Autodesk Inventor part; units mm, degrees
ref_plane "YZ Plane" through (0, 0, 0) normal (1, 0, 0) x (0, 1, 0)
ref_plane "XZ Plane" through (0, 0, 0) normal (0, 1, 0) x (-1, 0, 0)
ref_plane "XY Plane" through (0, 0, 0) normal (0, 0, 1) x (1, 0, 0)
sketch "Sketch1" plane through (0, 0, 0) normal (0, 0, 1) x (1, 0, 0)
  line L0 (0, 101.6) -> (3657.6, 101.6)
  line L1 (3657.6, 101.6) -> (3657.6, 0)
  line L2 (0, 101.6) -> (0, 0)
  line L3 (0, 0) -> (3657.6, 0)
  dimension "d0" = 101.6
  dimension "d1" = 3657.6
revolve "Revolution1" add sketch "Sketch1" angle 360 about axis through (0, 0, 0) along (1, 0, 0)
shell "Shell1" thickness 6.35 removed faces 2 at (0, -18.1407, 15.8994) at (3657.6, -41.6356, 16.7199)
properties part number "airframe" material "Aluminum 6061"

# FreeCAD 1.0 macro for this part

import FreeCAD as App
import Part
import Sketcher
Q = App.Units.Quantity


def faces_at(feature, points):
    """Names of the faces that lie closest to the given points."""
    faces = feature.Shape.Faces
    near = lambda p: min(range(len(faces)), key=lambda i: faces[i].distToShape(Part.Vertex(*p))[0])
    return sorted({f"Face{near(p) + 1}" for p in points})

doc = App.newDocument("Part")
body = doc.addObject("PartDesign::Body", "Body")

sketch1 = body.newObject("Sketcher::SketchObject", "Sketch")
sketch1.AttachmentSupport = (doc.getObject("XY_Plane"), [""])
sketch1.MapMode = "FlatFace"
sketch1.addGeometry([
    Part.LineSegment(App.Vector(3657.6, 101.6, 0), App.Vector(0, 101.6, 0)),
    Part.LineSegment(App.Vector(0, 101.6, 0), App.Vector(0, 0, 0)),
    Part.LineSegment(App.Vector(0, 0, 0), App.Vector(3657.6, 0, 0)),
    Part.LineSegment(App.Vector(3657.6, 0, 0), App.Vector(3657.6, 101.6, 0)),
], False)
sketch1.addConstraint([
    Sketcher.Constraint("Coincident", 0, 2, 1, 1),
    Sketcher.Constraint("Coincident", 1, 2, 2, 1),
    Sketcher.Constraint("Coincident", 2, 2, 3, 1),
    Sketcher.Constraint("Coincident", 3, 2, 0, 1),
    Sketcher.Constraint("Horizontal", 0),
    Sketcher.Constraint("Vertical", 1),
    Sketcher.Constraint("Horizontal", 2),
    Sketcher.Constraint("Vertical", 3),
    Sketcher.Constraint("Coincident", 1, 2, -1, 1),
    Sketcher.Constraint("DistanceX", 0, 2, 0, 1, Q("144 in")),
    Sketcher.Constraint("DistanceY", 1, 2, 1, 1, Q("4 in")),
])
revolution = body.newObject("PartDesign::Revolution", "Revolution")
revolution.Profile = sketch1
revolution.ReferenceAxis = (sketch1, ["H_Axis"])
revolution.Angle = 360
doc.recompute()

thickness = body.newObject("PartDesign::Thickness", "Thickness")
thickness.Base = (revolution, faces_at(revolution, [(0, -18.141, 15.899), (3657.6, -41.636, 16.72)]))
thickness.Value = Q("0.25 in")
thickness.Reversed = True
thickness.Join = "Intersection"

doc.recompute()
